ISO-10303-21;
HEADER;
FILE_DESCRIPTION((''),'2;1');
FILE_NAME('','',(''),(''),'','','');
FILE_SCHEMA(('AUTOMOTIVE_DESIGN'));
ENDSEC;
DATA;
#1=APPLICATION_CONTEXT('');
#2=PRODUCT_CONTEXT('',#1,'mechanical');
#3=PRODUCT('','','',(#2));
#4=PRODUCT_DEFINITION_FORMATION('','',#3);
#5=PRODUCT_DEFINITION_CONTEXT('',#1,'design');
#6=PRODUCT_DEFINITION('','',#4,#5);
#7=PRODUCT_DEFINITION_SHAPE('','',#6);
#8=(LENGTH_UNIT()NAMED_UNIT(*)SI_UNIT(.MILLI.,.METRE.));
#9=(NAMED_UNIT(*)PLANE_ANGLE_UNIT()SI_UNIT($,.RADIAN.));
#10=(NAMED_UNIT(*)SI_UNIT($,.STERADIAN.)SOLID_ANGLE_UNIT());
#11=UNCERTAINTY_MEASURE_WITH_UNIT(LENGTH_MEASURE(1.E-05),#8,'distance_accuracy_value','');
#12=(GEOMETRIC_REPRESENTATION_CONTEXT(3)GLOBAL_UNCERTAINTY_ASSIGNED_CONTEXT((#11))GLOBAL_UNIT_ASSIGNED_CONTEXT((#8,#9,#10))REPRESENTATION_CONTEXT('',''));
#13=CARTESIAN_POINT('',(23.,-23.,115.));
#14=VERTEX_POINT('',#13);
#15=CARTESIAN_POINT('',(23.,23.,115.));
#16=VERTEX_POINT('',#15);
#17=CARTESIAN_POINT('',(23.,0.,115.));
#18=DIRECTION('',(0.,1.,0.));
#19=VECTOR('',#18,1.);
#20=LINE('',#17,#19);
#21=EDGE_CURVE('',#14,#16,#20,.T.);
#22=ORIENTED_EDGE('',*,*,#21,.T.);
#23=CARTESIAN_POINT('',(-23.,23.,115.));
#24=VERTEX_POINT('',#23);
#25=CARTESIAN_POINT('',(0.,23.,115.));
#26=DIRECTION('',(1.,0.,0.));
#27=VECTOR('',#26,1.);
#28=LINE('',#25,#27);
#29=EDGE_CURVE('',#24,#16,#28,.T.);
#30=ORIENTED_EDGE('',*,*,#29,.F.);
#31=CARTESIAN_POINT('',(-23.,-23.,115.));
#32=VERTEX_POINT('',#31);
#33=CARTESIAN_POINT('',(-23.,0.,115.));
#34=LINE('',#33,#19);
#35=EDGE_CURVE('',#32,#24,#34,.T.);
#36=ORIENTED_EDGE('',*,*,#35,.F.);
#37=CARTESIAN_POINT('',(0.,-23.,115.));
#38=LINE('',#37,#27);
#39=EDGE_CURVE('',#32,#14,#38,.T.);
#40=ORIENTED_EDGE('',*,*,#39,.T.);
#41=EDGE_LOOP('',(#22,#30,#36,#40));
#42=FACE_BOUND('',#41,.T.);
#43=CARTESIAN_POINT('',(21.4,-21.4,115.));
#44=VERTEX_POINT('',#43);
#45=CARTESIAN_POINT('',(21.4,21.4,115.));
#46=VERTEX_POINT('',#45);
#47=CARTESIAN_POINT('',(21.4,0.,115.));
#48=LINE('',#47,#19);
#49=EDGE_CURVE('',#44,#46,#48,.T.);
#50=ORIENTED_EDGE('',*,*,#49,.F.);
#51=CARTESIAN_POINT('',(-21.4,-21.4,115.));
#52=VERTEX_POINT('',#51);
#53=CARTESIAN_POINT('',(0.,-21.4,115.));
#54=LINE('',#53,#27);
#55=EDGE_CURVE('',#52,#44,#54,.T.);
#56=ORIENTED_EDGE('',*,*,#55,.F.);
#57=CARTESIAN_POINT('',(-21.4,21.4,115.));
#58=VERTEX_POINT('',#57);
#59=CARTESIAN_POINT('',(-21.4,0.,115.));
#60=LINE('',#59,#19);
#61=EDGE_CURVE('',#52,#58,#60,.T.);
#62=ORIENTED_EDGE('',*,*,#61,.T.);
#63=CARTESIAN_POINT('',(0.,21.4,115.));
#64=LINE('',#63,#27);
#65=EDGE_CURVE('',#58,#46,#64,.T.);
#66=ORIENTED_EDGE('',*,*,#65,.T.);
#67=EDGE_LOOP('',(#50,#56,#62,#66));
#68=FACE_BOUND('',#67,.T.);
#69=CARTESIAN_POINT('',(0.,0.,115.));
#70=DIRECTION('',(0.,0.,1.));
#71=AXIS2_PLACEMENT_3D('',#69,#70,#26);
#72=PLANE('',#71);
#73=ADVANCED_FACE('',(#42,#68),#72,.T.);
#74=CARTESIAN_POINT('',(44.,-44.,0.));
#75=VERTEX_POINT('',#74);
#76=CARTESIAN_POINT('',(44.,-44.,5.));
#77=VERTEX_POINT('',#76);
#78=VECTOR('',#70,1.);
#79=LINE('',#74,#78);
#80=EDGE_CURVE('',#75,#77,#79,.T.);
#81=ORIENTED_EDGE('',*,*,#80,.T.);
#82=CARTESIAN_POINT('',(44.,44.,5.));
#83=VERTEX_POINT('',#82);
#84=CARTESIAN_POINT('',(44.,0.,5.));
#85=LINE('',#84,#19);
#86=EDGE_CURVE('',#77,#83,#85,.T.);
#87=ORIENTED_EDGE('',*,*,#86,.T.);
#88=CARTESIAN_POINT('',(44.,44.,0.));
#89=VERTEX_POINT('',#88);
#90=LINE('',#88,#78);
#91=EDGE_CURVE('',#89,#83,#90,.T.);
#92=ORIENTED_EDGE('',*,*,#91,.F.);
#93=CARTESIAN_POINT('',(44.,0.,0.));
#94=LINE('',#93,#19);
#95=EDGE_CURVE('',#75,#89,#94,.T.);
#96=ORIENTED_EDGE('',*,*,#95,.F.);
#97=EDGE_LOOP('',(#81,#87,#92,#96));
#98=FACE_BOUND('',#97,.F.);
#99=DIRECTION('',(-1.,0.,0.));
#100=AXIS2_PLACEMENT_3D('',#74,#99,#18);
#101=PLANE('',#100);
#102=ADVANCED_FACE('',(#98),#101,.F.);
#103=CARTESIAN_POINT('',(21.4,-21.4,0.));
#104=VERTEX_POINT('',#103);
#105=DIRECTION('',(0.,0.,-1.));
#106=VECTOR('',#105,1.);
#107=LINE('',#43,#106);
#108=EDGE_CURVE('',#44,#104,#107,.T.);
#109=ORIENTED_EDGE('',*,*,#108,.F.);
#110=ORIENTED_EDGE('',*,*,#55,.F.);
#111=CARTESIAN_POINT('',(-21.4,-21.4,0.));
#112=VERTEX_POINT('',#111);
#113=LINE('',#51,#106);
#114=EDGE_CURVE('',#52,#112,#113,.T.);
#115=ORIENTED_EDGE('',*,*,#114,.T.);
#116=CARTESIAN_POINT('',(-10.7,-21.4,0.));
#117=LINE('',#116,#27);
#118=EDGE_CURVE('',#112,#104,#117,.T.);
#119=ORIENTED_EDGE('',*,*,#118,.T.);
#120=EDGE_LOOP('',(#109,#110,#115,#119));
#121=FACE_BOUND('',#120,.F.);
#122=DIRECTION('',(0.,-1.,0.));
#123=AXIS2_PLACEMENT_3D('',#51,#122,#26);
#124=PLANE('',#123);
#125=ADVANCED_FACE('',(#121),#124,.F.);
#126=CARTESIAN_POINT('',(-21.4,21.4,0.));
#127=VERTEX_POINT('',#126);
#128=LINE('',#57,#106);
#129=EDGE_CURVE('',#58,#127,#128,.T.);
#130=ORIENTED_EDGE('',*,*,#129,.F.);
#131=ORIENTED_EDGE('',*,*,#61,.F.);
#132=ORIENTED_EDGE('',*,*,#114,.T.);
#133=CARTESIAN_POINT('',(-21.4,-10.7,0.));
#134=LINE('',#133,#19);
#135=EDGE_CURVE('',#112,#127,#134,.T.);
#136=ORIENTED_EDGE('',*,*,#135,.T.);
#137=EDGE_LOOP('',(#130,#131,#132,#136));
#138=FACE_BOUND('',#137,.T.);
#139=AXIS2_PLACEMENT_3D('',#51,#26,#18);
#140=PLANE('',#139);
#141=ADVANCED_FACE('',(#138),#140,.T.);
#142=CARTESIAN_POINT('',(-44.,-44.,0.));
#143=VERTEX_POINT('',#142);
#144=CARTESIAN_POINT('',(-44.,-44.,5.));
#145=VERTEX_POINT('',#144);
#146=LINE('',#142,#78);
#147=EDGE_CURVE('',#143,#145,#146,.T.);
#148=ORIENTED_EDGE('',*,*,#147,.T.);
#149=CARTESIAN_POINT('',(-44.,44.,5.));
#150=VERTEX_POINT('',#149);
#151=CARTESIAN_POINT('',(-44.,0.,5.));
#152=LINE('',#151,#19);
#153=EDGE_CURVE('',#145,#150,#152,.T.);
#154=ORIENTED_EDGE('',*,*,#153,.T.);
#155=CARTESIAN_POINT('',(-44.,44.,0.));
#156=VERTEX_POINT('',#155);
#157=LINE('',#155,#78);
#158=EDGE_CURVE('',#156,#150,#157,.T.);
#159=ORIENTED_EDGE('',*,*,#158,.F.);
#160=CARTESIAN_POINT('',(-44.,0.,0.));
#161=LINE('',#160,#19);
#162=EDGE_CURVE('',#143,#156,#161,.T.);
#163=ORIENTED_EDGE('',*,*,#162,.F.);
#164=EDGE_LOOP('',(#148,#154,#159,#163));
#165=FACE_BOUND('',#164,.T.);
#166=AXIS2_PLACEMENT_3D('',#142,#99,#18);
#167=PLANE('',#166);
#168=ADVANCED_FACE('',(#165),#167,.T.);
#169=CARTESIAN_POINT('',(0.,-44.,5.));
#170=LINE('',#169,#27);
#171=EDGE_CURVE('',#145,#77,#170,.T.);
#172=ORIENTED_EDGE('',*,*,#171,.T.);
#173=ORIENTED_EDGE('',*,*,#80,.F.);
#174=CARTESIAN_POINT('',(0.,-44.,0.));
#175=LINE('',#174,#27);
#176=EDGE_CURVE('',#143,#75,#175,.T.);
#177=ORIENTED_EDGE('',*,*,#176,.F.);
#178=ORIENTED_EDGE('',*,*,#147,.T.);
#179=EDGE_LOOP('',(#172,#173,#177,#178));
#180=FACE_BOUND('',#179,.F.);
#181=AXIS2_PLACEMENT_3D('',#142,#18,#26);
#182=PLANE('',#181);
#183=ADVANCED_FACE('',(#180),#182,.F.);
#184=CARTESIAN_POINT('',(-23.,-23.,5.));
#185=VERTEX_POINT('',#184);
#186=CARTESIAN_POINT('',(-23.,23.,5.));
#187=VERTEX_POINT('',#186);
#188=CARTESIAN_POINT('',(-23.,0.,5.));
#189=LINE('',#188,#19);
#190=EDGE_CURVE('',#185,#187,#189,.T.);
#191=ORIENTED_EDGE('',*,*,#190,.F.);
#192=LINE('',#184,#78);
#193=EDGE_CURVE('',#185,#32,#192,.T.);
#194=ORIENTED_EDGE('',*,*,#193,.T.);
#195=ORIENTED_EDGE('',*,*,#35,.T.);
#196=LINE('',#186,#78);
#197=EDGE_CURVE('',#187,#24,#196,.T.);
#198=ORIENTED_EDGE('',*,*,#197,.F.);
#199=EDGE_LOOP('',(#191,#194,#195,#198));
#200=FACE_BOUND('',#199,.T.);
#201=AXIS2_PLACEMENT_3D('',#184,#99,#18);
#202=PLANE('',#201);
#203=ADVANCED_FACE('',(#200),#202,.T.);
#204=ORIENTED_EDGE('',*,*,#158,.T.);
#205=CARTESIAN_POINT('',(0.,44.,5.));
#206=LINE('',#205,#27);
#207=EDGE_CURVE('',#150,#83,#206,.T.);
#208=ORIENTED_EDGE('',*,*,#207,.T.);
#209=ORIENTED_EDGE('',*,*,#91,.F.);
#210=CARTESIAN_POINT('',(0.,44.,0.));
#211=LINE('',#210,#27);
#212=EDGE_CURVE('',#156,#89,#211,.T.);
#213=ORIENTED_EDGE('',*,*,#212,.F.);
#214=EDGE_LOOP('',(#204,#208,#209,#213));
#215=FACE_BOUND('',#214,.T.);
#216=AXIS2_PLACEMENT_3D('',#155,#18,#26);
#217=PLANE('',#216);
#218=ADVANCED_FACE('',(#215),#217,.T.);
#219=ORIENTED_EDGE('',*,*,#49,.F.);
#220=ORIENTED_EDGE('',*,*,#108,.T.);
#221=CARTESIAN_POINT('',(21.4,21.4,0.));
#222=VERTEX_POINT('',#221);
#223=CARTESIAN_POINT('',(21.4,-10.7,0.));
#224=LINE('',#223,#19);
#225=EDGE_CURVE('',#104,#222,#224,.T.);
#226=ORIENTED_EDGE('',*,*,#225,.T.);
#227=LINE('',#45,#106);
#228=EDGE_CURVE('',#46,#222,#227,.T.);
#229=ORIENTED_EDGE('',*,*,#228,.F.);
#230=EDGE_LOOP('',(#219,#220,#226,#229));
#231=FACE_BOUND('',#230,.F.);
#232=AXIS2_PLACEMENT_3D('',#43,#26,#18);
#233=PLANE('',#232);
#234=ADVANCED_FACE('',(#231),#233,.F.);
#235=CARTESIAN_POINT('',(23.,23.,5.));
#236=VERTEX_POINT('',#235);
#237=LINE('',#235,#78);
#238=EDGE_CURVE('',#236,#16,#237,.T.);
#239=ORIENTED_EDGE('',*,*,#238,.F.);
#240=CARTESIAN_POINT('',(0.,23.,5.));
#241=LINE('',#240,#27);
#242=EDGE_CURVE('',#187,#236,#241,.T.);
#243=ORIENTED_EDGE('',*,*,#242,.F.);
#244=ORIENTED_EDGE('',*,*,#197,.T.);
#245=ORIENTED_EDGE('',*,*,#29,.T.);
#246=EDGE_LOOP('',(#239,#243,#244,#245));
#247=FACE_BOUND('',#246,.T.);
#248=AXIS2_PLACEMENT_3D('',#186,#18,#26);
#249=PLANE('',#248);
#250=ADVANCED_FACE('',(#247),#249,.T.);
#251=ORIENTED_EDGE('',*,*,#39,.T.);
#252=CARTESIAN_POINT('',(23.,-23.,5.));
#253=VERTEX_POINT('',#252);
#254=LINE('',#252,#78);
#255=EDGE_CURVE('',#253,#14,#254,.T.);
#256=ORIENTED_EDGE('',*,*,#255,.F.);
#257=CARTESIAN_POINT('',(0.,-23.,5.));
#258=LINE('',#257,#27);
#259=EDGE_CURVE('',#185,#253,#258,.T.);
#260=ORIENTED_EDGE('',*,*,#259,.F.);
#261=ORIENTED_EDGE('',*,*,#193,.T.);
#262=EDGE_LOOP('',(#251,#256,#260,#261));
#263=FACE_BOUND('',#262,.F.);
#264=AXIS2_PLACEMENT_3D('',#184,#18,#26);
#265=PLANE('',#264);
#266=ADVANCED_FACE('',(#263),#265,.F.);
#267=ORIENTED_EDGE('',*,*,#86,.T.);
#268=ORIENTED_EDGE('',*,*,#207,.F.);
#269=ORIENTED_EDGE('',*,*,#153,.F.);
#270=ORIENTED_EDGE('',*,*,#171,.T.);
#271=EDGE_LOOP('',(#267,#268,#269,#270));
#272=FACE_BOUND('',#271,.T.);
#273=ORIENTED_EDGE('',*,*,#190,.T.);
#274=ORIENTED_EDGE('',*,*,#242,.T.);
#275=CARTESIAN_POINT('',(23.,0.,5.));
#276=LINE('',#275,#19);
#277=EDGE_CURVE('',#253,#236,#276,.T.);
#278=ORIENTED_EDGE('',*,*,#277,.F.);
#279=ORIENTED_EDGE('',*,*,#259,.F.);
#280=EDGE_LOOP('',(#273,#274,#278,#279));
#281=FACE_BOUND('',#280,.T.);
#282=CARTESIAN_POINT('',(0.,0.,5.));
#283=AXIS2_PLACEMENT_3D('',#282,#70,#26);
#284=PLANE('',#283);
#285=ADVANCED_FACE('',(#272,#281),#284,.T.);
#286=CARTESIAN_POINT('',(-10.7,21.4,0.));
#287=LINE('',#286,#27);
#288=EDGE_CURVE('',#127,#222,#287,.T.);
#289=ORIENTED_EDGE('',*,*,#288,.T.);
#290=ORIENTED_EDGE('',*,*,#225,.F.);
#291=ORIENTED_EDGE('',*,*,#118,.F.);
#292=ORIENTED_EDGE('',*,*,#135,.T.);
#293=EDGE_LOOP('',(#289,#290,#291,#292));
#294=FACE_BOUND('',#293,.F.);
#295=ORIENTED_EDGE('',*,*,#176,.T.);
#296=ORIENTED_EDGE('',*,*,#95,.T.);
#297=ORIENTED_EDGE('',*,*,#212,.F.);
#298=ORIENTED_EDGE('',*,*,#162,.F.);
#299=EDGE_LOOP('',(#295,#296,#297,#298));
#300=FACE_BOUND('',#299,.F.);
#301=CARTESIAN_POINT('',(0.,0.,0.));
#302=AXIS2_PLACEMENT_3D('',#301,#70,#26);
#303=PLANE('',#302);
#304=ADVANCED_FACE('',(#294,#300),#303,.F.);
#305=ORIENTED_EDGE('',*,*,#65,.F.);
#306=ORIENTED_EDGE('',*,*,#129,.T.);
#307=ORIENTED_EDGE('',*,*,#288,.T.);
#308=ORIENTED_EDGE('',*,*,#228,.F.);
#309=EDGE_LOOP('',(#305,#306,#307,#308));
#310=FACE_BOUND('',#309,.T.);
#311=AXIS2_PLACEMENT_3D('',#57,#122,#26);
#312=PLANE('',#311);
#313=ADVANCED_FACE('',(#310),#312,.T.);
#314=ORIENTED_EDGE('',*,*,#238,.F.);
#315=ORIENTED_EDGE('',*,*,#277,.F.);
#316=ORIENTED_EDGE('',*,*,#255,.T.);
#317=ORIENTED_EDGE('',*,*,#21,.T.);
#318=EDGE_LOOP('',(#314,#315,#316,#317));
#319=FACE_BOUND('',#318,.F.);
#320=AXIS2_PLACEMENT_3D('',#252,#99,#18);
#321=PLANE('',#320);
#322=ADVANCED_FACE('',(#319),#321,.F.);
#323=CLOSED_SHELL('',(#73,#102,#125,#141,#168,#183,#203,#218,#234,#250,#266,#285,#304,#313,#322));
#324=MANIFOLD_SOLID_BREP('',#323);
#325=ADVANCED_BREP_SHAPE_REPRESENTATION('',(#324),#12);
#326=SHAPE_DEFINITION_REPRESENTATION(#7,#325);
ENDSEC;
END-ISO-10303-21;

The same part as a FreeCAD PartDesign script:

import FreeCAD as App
import Part
import Sketcher

V = App.Vector


def add_polygon(sketch, points):
    """Adds a closed chain of lines whose ends are joined by coincident constraints."""
    first, n = sketch.GeometryCount, len(points)
    for a, b in zip(points, points[1:] + points[:1]):
        sketch.addGeometry(Part.LineSegment(App.Vector(*a, 0), App.Vector(*b, 0)), False)
    for i in range(n):
        sketch.addConstraint(Sketcher.Constraint("Coincident", first + i, 2, first + (i + 1) % n, 1))

doc = App.newDocument("Part")
body = doc.addObject("PartDesign::Body", "Body")

# Sketch on XY plane
sketch1 = doc.addObject("Sketcher::SketchObject", "Sketch")
body.addObject(sketch1)
sketch1.AttachmentSupport = (doc.XY_Plane, [""])
sketch1.MapMode = "FlatFace"
add_polygon(sketch1, [(-44, 44), (-44, -44), (44, -44), (44, 44)])  # lines 0-3
sketch1.addConstraint([
    Sketcher.Constraint("Vertical", 0),
    Sketcher.Constraint("Horizontal", 1),
    Sketcher.Constraint("Vertical", 2),
    Sketcher.Constraint("Horizontal", 3),
    Sketcher.Constraint("Symmetric", 0, 2, 2, 2, -1, 1),
    Sketcher.Constraint("Equal", 3, 0),
    Sketcher.Constraint("DistanceX", 1, 1, 1, 2, 88.0),
])
pad1 = doc.addObject("PartDesign::Pad", "Pad")
body.addObject(pad1)
pad1.Profile = sketch1
pad1.Length = 5

# Sketch on XY plane
sketch2 = doc.addObject("Sketcher::SketchObject", "Sketch001")
body.addObject(sketch2)
sketch2.AttachmentSupport = (doc.XY_Plane, [""])
sketch2.MapMode = "FlatFace"
sketch2.AttachmentOffset = App.Placement(V(0, 0, 5), App.Rotation())
add_polygon(sketch2, [(-23, 23), (-23, -23), (23, -23), (23, 23)])  # lines 0-3
sketch2.addConstraint([
    Sketcher.Constraint("Vertical", 0),
    Sketcher.Constraint("Horizontal", 1),
    Sketcher.Constraint("Vertical", 2),
    Sketcher.Constraint("Horizontal", 3),
    Sketcher.Constraint("Symmetric", 0, 2, 2, 2, -1, 1),
    Sketcher.Constraint("Equal", 3, 0),
    Sketcher.Constraint("DistanceX", 1, 1, 1, 2, 46.0),
])
pad2 = doc.addObject("PartDesign::Pad", "Pad001")
body.addObject(pad2)
pad2.Profile = sketch2
pad2.Length = 110

# Sketch on XY plane
sketch3 = doc.addObject("Sketcher::SketchObject", "Sketch002")
body.addObject(sketch3)
sketch3.AttachmentSupport = (doc.XY_Plane, [""])
sketch3.MapMode = "FlatFace"
sketch3.AttachmentOffset = App.Placement(V(0, 0, 115), App.Rotation())
add_polygon(sketch3, [(-21, 21), (-21, -21), (21, -21), (21, 21)])  # lines 0-3
sketch3.addConstraint([
    Sketcher.Constraint("Vertical", 0),
    Sketcher.Constraint("Horizontal", 1),
    Sketcher.Constraint("Vertical", 2),
    Sketcher.Constraint("Horizontal", 3),
    Sketcher.Constraint("Symmetric", 0, 2, 2, 2, -1, 1),
    Sketcher.Constraint("Equal", 3, 0),
    Sketcher.Constraint("DistanceX", 1, 1, 1, 2, 42.8),
])
pocket1 = doc.addObject("PartDesign::Pocket", "Pocket")
body.addObject(pocket1)
pocket1.Profile = sketch3
pocket1.Type = "ThroughAll"

doc.recompute()
